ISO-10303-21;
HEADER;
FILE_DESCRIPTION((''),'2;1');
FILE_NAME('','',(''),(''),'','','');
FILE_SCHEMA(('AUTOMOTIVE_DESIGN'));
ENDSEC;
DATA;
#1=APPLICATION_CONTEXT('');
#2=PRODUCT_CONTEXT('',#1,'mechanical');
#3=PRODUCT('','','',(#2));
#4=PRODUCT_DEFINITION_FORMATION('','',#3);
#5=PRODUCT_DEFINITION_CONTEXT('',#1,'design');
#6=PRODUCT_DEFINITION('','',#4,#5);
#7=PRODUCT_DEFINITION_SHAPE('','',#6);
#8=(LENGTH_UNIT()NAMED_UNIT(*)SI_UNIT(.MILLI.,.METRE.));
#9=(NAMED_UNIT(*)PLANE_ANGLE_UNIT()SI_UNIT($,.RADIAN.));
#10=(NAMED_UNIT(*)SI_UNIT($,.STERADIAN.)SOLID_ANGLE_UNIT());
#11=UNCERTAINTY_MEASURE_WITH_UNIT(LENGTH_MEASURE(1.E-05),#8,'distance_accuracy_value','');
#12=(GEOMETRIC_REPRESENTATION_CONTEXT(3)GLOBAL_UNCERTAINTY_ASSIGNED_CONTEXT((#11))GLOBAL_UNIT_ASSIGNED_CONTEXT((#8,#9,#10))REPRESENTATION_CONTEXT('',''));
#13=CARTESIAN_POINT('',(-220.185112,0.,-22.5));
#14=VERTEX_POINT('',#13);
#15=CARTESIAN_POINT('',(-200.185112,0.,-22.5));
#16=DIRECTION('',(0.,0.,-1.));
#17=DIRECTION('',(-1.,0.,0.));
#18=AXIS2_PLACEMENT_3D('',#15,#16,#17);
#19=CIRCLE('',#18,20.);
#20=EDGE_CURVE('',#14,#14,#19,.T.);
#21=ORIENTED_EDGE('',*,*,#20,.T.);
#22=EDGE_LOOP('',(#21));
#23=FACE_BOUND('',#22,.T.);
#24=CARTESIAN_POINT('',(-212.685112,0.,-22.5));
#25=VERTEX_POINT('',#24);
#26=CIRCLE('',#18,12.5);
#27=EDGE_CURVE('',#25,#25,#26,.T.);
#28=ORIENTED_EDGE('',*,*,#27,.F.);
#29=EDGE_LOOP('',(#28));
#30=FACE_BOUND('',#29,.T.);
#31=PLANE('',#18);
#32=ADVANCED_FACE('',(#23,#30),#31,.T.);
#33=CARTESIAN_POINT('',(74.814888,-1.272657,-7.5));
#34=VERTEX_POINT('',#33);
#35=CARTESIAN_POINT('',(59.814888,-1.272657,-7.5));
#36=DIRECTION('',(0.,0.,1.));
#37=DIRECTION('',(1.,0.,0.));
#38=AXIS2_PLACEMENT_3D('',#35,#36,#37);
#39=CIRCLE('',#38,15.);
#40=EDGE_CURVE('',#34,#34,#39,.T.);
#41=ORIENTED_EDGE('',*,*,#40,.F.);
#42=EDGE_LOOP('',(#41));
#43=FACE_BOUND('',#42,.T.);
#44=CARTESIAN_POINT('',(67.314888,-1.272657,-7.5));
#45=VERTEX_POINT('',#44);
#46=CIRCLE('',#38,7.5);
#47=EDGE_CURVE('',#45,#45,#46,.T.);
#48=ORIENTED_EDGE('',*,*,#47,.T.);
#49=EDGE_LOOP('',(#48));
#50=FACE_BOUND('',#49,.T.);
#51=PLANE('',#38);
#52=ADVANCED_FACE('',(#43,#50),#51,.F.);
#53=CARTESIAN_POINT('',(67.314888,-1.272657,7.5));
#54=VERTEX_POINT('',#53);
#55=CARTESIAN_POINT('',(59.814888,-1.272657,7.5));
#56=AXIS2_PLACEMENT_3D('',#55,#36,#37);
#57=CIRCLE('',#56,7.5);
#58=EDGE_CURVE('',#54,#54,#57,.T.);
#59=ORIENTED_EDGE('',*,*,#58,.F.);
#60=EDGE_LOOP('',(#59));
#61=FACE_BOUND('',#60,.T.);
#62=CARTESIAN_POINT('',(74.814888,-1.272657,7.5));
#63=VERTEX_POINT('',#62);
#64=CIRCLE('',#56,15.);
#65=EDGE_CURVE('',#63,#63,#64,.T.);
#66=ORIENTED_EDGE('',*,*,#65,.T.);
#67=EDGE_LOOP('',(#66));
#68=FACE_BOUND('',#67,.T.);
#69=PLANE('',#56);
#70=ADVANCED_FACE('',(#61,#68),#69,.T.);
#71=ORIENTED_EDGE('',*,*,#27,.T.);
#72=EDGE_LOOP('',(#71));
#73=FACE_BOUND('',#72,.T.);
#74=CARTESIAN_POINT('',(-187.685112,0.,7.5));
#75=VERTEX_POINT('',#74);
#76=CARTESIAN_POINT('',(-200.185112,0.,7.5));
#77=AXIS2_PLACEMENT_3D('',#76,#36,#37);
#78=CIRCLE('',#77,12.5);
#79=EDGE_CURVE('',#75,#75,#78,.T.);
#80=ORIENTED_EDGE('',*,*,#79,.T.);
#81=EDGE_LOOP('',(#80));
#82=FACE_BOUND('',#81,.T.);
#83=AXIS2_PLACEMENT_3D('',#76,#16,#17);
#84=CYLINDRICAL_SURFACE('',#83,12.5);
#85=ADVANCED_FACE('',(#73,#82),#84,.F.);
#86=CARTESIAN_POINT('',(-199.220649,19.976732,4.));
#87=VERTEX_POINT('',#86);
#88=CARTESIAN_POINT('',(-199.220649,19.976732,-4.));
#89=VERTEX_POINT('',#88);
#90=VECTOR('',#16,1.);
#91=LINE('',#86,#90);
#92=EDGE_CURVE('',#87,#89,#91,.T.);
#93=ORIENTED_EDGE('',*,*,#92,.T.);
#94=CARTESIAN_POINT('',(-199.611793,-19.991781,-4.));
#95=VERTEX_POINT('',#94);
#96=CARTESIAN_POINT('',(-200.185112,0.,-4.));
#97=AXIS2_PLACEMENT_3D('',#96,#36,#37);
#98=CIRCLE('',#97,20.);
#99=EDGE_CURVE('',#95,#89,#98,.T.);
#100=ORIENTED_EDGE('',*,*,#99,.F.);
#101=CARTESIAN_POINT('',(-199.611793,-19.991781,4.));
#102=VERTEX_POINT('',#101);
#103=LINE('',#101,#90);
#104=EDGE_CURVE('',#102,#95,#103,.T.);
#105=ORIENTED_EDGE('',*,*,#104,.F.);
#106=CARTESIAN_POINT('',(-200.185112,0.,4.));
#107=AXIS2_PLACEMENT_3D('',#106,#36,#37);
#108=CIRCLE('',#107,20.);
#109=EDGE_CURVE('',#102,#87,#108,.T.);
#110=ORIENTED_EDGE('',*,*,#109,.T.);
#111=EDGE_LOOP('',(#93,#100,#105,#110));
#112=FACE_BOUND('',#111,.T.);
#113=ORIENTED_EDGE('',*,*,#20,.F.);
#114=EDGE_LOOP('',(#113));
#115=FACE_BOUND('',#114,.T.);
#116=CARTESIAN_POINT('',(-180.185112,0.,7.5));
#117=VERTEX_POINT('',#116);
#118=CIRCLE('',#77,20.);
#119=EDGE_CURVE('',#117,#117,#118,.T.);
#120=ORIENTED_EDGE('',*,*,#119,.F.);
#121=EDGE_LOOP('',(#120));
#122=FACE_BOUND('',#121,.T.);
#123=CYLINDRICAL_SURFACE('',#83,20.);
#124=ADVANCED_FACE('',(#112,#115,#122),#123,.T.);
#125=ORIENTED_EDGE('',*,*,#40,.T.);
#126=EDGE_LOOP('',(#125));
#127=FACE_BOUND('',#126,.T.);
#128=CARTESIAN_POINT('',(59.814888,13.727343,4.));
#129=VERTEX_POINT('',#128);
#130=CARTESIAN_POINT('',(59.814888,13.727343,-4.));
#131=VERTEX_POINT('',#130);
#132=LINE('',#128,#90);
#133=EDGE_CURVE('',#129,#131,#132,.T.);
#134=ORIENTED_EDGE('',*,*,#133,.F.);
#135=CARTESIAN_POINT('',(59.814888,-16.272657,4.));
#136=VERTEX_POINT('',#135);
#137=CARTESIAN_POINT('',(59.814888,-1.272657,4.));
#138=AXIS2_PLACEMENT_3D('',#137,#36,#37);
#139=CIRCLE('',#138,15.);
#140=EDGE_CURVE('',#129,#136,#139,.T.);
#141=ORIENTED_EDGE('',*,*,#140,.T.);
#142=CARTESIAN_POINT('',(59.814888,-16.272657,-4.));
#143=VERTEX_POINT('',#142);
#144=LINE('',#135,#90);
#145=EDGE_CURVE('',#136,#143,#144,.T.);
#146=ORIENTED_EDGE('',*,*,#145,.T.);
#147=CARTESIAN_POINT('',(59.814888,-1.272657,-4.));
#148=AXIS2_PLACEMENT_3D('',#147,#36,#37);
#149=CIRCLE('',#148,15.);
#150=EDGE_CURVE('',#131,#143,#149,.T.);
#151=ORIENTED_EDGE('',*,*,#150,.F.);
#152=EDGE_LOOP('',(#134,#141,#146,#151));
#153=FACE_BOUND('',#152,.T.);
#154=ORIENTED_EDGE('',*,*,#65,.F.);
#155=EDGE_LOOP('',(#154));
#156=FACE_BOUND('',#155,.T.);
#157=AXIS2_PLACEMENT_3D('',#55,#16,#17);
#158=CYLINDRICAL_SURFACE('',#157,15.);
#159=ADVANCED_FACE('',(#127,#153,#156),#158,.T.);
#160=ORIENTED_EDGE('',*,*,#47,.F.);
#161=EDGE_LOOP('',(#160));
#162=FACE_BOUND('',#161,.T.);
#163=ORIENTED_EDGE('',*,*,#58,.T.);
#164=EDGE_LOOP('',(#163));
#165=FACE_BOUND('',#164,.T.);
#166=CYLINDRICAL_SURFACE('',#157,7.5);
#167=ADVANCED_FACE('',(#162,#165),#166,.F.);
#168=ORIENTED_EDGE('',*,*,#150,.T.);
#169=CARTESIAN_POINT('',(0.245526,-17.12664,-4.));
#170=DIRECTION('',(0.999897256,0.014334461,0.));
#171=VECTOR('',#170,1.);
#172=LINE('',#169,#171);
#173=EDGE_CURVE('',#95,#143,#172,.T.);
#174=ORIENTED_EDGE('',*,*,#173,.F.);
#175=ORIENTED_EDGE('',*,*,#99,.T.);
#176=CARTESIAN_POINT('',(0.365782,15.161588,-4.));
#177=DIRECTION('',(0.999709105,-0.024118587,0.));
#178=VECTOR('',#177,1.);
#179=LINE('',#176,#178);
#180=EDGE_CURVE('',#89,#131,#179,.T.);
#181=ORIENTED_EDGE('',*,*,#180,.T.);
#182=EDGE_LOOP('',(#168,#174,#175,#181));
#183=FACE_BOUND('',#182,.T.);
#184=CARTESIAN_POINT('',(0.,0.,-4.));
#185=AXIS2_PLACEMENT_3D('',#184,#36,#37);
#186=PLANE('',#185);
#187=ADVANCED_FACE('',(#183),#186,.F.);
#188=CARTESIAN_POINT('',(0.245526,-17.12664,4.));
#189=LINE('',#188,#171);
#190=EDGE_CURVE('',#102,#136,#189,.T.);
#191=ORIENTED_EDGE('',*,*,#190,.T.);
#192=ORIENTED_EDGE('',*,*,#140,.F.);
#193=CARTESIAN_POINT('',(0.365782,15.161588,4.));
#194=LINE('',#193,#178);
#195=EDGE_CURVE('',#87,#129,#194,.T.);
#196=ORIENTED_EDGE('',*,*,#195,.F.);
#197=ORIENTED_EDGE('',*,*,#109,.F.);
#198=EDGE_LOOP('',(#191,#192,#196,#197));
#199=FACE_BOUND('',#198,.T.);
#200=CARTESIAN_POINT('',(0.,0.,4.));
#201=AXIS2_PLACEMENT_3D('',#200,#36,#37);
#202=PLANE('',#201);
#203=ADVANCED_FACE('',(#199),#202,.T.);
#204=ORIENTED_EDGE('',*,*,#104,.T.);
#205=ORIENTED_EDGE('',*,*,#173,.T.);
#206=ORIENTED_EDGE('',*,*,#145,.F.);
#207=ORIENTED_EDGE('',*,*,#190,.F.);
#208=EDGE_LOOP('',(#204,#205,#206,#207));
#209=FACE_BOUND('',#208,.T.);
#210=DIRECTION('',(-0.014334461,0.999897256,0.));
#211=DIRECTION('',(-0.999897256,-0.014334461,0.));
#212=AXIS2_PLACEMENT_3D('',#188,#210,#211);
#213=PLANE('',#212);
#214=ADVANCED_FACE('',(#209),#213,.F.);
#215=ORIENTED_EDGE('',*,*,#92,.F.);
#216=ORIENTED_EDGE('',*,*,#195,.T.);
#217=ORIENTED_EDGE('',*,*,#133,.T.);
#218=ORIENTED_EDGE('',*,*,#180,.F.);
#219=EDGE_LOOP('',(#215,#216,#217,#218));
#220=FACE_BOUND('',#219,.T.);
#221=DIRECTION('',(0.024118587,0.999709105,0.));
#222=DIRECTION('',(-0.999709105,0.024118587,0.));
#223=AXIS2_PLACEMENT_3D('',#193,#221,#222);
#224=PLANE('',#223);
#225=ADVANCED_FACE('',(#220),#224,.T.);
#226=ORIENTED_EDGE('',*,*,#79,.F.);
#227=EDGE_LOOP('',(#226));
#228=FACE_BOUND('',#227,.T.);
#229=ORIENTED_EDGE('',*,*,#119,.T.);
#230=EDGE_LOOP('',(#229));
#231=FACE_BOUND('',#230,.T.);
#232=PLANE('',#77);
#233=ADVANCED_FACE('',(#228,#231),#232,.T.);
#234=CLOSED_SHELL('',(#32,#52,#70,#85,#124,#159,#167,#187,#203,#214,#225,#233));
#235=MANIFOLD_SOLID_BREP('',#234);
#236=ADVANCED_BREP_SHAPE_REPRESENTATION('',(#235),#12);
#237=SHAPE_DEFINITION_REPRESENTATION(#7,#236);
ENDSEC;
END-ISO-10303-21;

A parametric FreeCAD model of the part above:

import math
import FreeCAD as App
import Part
import Sketcher

V = App.Vector

doc = App.newDocument("Part")
params = doc.addObject("Spreadsheet::Sheet", "Params")
for row, (alias, value) in enumerate([
    ("sketch1_radius", "20 mm"),
    ("sketch1_radius2", "15 mm"),
    ("pad1_length", "8 mm"),
    ("sketch2_diameter", "40 mm"),
    ("sketch2_diameter2", "25 mm"),
    ("sketch2_diameter3", "30 mm"),
    ("sketch2_diameter4", "15 mm"),
    ("pad2_length", "15 mm"),
    ("sketch3_diameter", "40 mm"),
    ("sketch3_diameter2", "25 mm"),
    ("pad3_length", "15 mm"),
], start=1):
    params.set(f"A{row}", alias)
    params.set(f"B{row}", "=" + value)
    params.setAlias(f"B{row}", alias)

body = doc.addObject("PartDesign::Body", "Body")

sketch1 = body.newObject("Sketcher::SketchObject", "Sketch")
sketch1.AttachmentSupport = (doc.getObject("XY_Plane"), [""])
sketch1.MapMode = "FlatFace"
sketch1.addGeometry(Part.LineSegment(V(59.814888, 13.727343, 0), V(-199.220649, 19.976732, 0)), False)
sketch1.addGeometry(Part.ArcOfCircle(Part.Circle(V(-200.185112, 0, 0), V(0, 0, 1), 20), math.radians(0), math.radians(87.235946)), False)
sketch1.addGeometry(Part.ArcOfCircle(Part.Circle(V(-200.185112, 0, 0), V(0, 0, 1), 20), math.radians(-88.357336), math.radians(0)), False)
sketch1.addGeometry(Part.LineSegment(V(-199.611793, -19.991781, 0), V(59.814888, -16.272657, 0)), False)
sketch1.addGeometry(Part.ArcOfCircle(Part.Circle(V(59.814888, -1.272657, 0), V(0, 0, 1), 15), math.radians(90), math.radians(270)), False)
sketch1.addConstraint(Sketcher.Constraint("Coincident", 0, 2, 1, 2))
sketch1.addConstraint(Sketcher.Constraint("Tangent", 1, 1, 2, 2))
sketch1.addConstraint(Sketcher.Constraint("Coincident", 2, 1, 3, 1))
sketch1.addConstraint(Sketcher.Constraint("Coincident", 3, 2, 4, 2))
sketch1.addConstraint(Sketcher.Constraint("Coincident", 4, 1, 0, 1))
sketch1.addConstraint(Sketcher.Constraint("Equal", 1, 2))
sketch1.addConstraint(Sketcher.Constraint("PointOnObject", 1, 3, -1))
sketch1.addConstraint(Sketcher.Constraint("PointOnObject", 1, 1, -1))
sketch1.addConstraint(Sketcher.Constraint("Vertical", 4, 3, 3, 2))
sketch1.addConstraint(Sketcher.Constraint("Vertical", 3, 2, 4, 1))
sketch1.addConstraint(Sketcher.Constraint("Radius", 1, 20.0))
sketch1.addConstraint(Sketcher.Constraint("Radius", 4, 15.0))
sketch1.addConstraint(Sketcher.Constraint("DistanceX", 2, 3, 4, 3, 260.0))
sketch1.addConstraint(Sketcher.Constraint("Distance", 0, 259.110911))
sketch1.addConstraint(Sketcher.Constraint("DistanceX", 0, 2, -1, 1, 199.220649))
sketch1.addConstraint(Sketcher.Constraint("DistanceY", 2, 1, -1, 1, 19.991781))
sketch1.addConstraint(Sketcher.Constraint("DistanceY", 4, 3, 0, 2, 21.249389))
sketch1.setExpression("Constraints[10]", "Params.sketch1_radius")
sketch1.setExpression("Constraints[11]", "Params.sketch1_radius2")
pad1 = body.newObject("PartDesign::Pad", "Pad")
pad1.Profile = sketch1
pad1.setExpression("Length", "Params.pad1_length")
pad1.Midplane = True

sketch2 = body.newObject("Sketcher::SketchObject", "Sketch001")
sketch2.AttachmentSupport = (doc.getObject("XY_Plane"), [""])
sketch2.MapMode = "FlatFace"
sketch2.addGeometry(Part.Circle(V(-200.185112, 0, 0), V(0, 0, 1), 20), False)
sketch2.addGeometry(Part.Circle(V(-200.185112, 0, 0), V(0, 0, 1), 12.5), False)
sketch2.addGeometry(Part.Circle(V(59.814888, -1.272657, 0), V(0, 0, 1), 15), False)
sketch2.addGeometry(Part.Circle(V(59.814888, -1.272657, 0), V(0, 0, 1), 7.5), False)
sketch2.addConstraint(Sketcher.Constraint("Coincident", 1, 3, 0, 3))
sketch2.addConstraint(Sketcher.Constraint("Coincident", 3, 3, 2, 3))
sketch2.addConstraint(Sketcher.Constraint("PointOnObject", 0, 3, -1))
sketch2.addConstraint(Sketcher.Constraint("Diameter", 0, 40.0))
sketch2.addConstraint(Sketcher.Constraint("Diameter", 1, 25.0))
sketch2.addConstraint(Sketcher.Constraint("Diameter", 2, 30.0))
sketch2.addConstraint(Sketcher.Constraint("Diameter", 3, 15.0))
sketch2.addConstraint(Sketcher.Constraint("DistanceX", 0, 3, 2, 3, 260.0))
sketch2.addConstraint(Sketcher.Constraint("DistanceX", 0, 3, -1, 1, 200.185112))
sketch2.addConstraint(Sketcher.Constraint("DistanceY", 2, 3, -1, 1, 1.272657))
sketch2.setExpression("Constraints[3]", "Params.sketch2_diameter")
sketch2.setExpression("Constraints[4]", "Params.sketch2_diameter2")
sketch2.setExpression("Constraints[5]", "Params.sketch2_diameter3")
sketch2.setExpression("Constraints[6]", "Params.sketch2_diameter4")
pad2 = body.newObject("PartDesign::Pad", "Pad001")
pad2.Profile = sketch2
pad2.setExpression("Length", "Params.pad2_length")
pad2.Midplane = True

sketch3 = body.newObject("Sketcher::SketchObject", "Sketch002")
sketch3.AttachmentSupport = (doc.getObject("XY_Plane"), [""])
sketch3.MapMode = "FlatFace"
sketch3.AttachmentOffset = App.Placement(V(0, 0, -7.5), App.Rotation())
sketch3.addGeometry(Part.Circle(V(-200.185112, 0, 0), V(0, 0, 1), 20), False)
sketch3.addGeometry(Part.Circle(V(-200.185112, 0, 0), V(0, 0, 1), 12.5), False)
sketch3.addConstraint(Sketcher.Constraint("Coincident", 1, 3, 0, 3))
sketch3.addConstraint(Sketcher.Constraint("PointOnObject", 0, 3, -1))
sketch3.addConstraint(Sketcher.Constraint("Diameter", 0, 40.0))
sketch3.addConstraint(Sketcher.Constraint("Diameter", 1, 25.0))
sketch3.addConstraint(Sketcher.Constraint("DistanceX", 0, 3, -1, 1, 200.185112))
sketch3.setExpression("Constraints[2]", "Params.sketch3_diameter")
sketch3.setExpression("Constraints[3]", "Params.sketch3_diameter2")
pad3 = body.newObject("PartDesign::Pad", "Pad002")
pad3.Profile = sketch3
pad3.setExpression("Length", "Params.pad3_length")
pad3.Reversed = True

doc.recompute()
